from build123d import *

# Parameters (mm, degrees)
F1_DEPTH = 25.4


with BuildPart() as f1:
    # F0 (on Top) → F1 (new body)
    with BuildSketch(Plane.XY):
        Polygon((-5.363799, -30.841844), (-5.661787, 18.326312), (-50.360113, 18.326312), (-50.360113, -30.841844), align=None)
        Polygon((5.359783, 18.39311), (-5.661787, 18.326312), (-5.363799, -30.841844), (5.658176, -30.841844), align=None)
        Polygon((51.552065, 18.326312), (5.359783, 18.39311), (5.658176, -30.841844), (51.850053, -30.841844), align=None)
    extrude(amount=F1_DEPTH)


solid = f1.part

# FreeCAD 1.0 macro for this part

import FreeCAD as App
import Part
import Sketcher
from FreeCAD import Vector
Q = App.Units.Quantity


def add_polygon(sketch, points):
    """Adds a closed chain of lines whose ends are joined by coincident constraints."""
    first, n = sketch.GeometryCount, len(points)
    for a, b in zip(points, points[1:] + points[:1]):
        sketch.addGeometry(Part.LineSegment(App.Vector(*a, 0), App.Vector(*b, 0)), False)
    for i in range(n):
        sketch.addConstraint(Sketcher.Constraint("Coincident", first + i, 2, first + (i + 1) % n, 1))

doc = App.newDocument("Part")
body = doc.addObject("PartDesign::Body", "Body")

sketch1 = doc.addObject("Sketcher::SketchObject", "Sketch")
body.addObject(sketch1)
sketch1.AttachmentSupport = (doc.XY_Plane, [""])
sketch1.MapMode = "FlatFace"
add_polygon(sketch1, [(-5.661787, 18.326312), (-50.360113, 18.326312), (-50.360113, -30.841844), (51.850053, -30.841844), (51.552065, 18.326312), (5.359783, 18.39311)])
sketch1.addConstraint([
    Sketcher.Constraint("Horizontal", 0),
    Sketcher.Constraint("Vertical", 1),
    Sketcher.Constraint("Horizontal", 2),
    Sketcher.Constraint("Perpendicular", 3, 5),
    Sketcher.Constraint("Horizontal", 0, 2, 3, 2),
    Sketcher.Constraint("Distance", 3, 49.169059),
    Sketcher.Constraint("Distance", 4, 46.19233),
    Sketcher.Constraint("DistanceX", 0, 2, 0, 1, 44.698326),
    Sketcher.Constraint("DistanceX", 2, 1, 2, 2, 102.210166),
    Sketcher.Constraint("DistanceY", 1, 2, 1, 1, 49.168156),
    Sketcher.Constraint("DistanceY", -1, 1, 4, 2, 18.39311),
    Sketcher.Constraint("DistanceX", 0, 2, -1, 1, 50.360113),
])
pad1 = doc.addObject("PartDesign::Pad", "Pad")
body.addObject(pad1)
pad1.Profile = sketch1
pad1.Length = Q("1 in")

doc.recompute()
